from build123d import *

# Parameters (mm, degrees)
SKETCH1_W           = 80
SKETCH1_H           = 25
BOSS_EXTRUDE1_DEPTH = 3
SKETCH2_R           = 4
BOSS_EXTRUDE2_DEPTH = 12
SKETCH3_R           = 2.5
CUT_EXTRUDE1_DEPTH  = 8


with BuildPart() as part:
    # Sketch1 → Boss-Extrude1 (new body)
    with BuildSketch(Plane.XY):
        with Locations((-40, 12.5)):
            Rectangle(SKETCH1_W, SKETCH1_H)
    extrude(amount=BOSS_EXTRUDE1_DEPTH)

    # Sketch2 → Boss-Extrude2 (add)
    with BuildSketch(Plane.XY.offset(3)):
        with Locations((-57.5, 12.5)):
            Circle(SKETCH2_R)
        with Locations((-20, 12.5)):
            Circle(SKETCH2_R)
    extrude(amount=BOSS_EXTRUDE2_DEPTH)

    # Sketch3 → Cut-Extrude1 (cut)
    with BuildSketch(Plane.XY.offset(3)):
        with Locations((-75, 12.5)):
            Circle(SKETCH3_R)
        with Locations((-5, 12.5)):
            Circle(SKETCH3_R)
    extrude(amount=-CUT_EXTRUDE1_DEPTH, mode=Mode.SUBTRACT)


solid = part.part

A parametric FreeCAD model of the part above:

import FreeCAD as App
import Part
import Sketcher

V = App.Vector


def add_polygon(sketch, points):
    """Adds a closed chain of lines whose ends are joined by coincident constraints."""
    first, n = sketch.GeometryCount, len(points)
    for a, b in zip(points, points[1:] + points[:1]):
        sketch.addGeometry(Part.LineSegment(App.Vector(*a, 0), App.Vector(*b, 0)), False)
    for i in range(n):
        sketch.addConstraint(Sketcher.Constraint("Coincident", first + i, 2, first + (i + 1) % n, 1))

doc = App.newDocument("Part")
body = doc.addObject("PartDesign::Body", "Body")

sketch1 = doc.addObject("Sketcher::SketchObject", "Sketch")
body.addObject(sketch1)
sketch1.AttachmentSupport = (doc.XY_Plane, [""])
sketch1.MapMode = "FlatFace"
add_polygon(sketch1, [(-80, 25), (-80, 0), (0, 0), (0, 25)])
sketch1.addConstraint(Sketcher.Constraint("Vertical", 0))
sketch1.addConstraint(Sketcher.Constraint("Horizontal", 1))
sketch1.addConstraint(Sketcher.Constraint("Vertical", 2))
sketch1.addConstraint(Sketcher.Constraint("Horizontal", 3))
sketch1.addConstraint(Sketcher.Constraint("Coincident", 1, 2, -1, 1))
sketch1.addConstraint(Sketcher.Constraint("DistanceX", 1, 1, 1, 2, 80.0))
sketch1.addConstraint(Sketcher.Constraint("DistanceY", 0, 2, 0, 1, 25.0))
pad1 = doc.addObject("PartDesign::Pad", "Pad")
body.addObject(pad1)
pad1.Profile = sketch1
pad1.Length = 3

sketch2 = doc.addObject("Sketcher::SketchObject", "Sketch001")
body.addObject(sketch2)
sketch2.AttachmentSupport = (doc.XY_Plane, [""])
sketch2.MapMode = "FlatFace"
sketch2.AttachmentOffset = App.Placement(V(0, 0, 3), App.Rotation())
sketch2.addGeometry(Part.Circle(V(-57.5, 12.5, 0), V(0, 0, 1), 4), False)
sketch2.addGeometry(Part.Circle(V(-20, 12.5, 0), V(0, 0, 1), 4), False)
sketch2.addConstraint(Sketcher.Constraint("Equal", 0, 1))
sketch2.addConstraint(Sketcher.Constraint("Horizontal", 0, 3, 1, 3))
sketch2.addConstraint(Sketcher.Constraint("Diameter", 0, 8.0))
sketch2.addConstraint(Sketcher.Constraint("DistanceX", 1, 3, -1, 1, 20.0))
sketch2.addConstraint(Sketcher.Constraint("DistanceX", 0, 3, -1, 1, 57.5))
sketch2.addConstraint(Sketcher.Constraint("DistanceY", -1, 1, 0, 3, 12.5))
pad2 = doc.addObject("PartDesign::Pad", "Pad001")
body.addObject(pad2)
pad2.Profile = sketch2
pad2.Length = 12

sketch3 = doc.addObject("Sketcher::SketchObject", "Sketch002")
body.addObject(sketch3)
sketch3.AttachmentSupport = (doc.XY_Plane, [""])
sketch3.MapMode = "FlatFace"
sketch3.AttachmentOffset = App.Placement(V(0, 0, 3), App.Rotation())
sketch3.addGeometry(Part.Circle(V(-75, 12.5, 0), V(0, 0, 1), 2.5), False)
sketch3.addGeometry(Part.Circle(V(-5, 12.5, 0), V(0, 0, 1), 2.5), False)
sketch3.addConstraint(Sketcher.Constraint("Equal", 0, 1))
sketch3.addConstraint(Sketcher.Constraint("Horizontal", 0, 3, 1, 3))
sketch3.addConstraint(Sketcher.Constraint("Diameter", 0, 5.0))
sketch3.addConstraint(Sketcher.Constraint("DistanceX", 0, 3, -1, 1, 75.0))
sketch3.addConstraint(Sketcher.Constraint("DistanceX", 1, 3, -1, 1, 5.0))
sketch3.addConstraint(Sketcher.Constraint("DistanceY", -1, 1, 0, 3, 12.5))
pocket1 = doc.addObject("PartDesign::Pocket", "Pocket")
body.addObject(pocket1)
pocket1.Profile = sketch3
pocket1.Length = 8

doc.recompute()
